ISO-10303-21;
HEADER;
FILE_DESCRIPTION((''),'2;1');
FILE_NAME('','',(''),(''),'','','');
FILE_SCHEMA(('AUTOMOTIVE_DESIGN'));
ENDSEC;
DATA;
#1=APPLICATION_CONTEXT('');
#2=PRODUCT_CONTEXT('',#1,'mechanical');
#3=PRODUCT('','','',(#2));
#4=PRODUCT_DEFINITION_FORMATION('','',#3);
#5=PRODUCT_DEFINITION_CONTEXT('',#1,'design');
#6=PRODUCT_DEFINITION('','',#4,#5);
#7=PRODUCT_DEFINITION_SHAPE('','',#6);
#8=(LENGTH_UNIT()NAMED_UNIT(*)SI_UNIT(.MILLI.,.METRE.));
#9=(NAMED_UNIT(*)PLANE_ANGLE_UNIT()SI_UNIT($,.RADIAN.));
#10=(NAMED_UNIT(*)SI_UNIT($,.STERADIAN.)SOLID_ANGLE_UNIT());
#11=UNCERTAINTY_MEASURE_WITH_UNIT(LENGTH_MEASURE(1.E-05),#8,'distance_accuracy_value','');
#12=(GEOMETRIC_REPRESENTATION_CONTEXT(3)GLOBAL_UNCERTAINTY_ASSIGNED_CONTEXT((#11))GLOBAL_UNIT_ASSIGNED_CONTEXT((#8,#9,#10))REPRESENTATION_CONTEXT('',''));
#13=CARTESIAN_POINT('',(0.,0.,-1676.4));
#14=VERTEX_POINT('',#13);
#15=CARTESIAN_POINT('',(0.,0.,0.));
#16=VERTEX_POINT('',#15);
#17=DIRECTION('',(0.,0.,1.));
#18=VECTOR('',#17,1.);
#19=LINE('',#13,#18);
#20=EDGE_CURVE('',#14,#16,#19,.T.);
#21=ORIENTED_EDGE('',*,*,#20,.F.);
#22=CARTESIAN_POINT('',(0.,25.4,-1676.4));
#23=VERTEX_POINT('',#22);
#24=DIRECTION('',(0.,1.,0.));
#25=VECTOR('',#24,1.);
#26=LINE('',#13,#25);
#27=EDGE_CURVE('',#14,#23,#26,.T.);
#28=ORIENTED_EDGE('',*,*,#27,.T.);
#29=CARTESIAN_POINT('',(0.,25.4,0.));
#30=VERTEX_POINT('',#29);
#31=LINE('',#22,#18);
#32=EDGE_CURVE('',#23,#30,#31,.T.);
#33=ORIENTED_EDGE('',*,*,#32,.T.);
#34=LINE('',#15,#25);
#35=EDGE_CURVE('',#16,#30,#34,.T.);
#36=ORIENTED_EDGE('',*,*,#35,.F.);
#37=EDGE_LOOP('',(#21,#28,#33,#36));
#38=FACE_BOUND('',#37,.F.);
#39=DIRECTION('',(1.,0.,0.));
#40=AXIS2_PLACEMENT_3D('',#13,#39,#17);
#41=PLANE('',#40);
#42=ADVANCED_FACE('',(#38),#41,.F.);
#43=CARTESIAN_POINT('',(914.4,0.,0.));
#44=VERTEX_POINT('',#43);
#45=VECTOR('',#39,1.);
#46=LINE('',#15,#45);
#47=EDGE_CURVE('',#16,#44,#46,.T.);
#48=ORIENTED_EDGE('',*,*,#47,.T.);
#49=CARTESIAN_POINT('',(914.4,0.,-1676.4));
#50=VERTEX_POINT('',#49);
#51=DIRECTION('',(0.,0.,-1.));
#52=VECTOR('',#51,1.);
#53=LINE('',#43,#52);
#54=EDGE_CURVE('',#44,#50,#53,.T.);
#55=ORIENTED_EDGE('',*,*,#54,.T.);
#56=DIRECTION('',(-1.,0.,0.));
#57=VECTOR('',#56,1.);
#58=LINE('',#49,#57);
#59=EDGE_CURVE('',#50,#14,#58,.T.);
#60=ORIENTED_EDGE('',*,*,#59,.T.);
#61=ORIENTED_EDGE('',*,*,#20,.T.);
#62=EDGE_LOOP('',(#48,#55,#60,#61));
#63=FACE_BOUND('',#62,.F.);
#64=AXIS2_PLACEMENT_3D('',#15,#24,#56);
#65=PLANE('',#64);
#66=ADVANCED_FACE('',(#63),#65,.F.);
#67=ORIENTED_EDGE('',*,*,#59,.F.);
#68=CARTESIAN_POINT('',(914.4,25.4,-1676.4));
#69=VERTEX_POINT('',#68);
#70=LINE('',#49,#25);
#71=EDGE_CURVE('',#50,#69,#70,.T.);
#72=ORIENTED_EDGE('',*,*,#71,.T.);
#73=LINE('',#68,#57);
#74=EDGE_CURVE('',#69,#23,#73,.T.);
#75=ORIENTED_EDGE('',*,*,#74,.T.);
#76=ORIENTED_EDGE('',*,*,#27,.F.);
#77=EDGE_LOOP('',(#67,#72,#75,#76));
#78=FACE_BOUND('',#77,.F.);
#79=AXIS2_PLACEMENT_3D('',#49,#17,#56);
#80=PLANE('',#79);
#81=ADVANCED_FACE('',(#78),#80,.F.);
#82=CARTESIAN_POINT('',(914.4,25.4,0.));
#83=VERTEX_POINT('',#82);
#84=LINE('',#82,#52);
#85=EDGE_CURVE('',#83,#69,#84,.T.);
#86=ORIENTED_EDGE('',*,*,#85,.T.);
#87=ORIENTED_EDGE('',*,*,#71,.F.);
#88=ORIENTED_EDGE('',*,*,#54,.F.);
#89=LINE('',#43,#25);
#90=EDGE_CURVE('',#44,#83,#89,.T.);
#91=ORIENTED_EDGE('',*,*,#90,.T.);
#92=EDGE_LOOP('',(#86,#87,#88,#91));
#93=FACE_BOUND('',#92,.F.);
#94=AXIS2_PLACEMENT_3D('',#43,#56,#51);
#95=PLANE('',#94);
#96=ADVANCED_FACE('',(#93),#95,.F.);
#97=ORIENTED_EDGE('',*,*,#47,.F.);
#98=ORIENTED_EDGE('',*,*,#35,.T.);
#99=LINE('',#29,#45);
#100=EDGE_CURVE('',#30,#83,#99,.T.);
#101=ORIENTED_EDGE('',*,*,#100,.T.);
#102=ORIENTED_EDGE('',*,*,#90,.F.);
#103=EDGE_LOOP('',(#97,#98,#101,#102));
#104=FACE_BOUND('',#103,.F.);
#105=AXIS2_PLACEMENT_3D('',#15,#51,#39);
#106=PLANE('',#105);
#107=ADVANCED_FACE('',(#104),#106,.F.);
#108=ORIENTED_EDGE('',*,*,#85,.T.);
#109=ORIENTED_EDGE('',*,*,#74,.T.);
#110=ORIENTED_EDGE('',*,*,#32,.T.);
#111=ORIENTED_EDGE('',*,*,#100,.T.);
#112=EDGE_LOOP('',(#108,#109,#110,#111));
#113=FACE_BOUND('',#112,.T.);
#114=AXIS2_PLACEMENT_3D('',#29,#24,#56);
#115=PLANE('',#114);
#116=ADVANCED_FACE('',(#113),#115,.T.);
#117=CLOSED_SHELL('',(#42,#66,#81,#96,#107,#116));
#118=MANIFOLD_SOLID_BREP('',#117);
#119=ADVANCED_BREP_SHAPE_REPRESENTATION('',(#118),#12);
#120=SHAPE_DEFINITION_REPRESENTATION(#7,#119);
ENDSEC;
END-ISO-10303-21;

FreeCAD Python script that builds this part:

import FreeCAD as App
import Part
import Sketcher

V = App.Vector
Q = App.Units.Quantity

doc = App.newDocument("Part")
body = doc.addObject("PartDesign::Body", "Body")

# Sketch on XZ plane
sketch1 = doc.addObject("Sketcher::SketchObject", "Sketch")
body.addObject(sketch1)
sketch1.AttachmentSupport = (doc.XZ_Plane, [""])
sketch1.MapMode = "FlatFace"
sketch1.addGeometry([
    Part.LineSegment(V(0, -1676, 0), V(0, 0, 0)),
    Part.LineSegment(V(0, 0, 0), V(914, 0, 0)),
    Part.LineSegment(V(914, 0, 0), V(914, -1676, 0)),
    Part.LineSegment(V(914, -1676, 0), V(0, -1676, 0)),
], False)
sketch1.addConstraint([
    Sketcher.Constraint("Coincident", 0, 2, 1, 1),
    Sketcher.Constraint("Coincident", 1, 2, 2, 1),
    Sketcher.Constraint("Coincident", 2, 2, 3, 1),
    Sketcher.Constraint("Coincident", 3, 2, 0, 1),
    Sketcher.Constraint("Vertical", 0),
    Sketcher.Constraint("Horizontal", 1),
    Sketcher.Constraint("Vertical", 2),
    Sketcher.Constraint("Horizontal", 3),
    Sketcher.Constraint("Coincident", 0, 2, -1, 1),
    Sketcher.Constraint("DistanceX", 1, 1, 1, 2, Q("36 in")),
    Sketcher.Constraint("DistanceY", 0, 1, 0, 2, Q("66 in")),
])
pad1 = doc.addObject("PartDesign::Pad", "Pad")
body.addObject(pad1)
pad1.Profile = sketch1
pad1.Length = Q("1 in")
pad1.Reversed = True

doc.recompute()
